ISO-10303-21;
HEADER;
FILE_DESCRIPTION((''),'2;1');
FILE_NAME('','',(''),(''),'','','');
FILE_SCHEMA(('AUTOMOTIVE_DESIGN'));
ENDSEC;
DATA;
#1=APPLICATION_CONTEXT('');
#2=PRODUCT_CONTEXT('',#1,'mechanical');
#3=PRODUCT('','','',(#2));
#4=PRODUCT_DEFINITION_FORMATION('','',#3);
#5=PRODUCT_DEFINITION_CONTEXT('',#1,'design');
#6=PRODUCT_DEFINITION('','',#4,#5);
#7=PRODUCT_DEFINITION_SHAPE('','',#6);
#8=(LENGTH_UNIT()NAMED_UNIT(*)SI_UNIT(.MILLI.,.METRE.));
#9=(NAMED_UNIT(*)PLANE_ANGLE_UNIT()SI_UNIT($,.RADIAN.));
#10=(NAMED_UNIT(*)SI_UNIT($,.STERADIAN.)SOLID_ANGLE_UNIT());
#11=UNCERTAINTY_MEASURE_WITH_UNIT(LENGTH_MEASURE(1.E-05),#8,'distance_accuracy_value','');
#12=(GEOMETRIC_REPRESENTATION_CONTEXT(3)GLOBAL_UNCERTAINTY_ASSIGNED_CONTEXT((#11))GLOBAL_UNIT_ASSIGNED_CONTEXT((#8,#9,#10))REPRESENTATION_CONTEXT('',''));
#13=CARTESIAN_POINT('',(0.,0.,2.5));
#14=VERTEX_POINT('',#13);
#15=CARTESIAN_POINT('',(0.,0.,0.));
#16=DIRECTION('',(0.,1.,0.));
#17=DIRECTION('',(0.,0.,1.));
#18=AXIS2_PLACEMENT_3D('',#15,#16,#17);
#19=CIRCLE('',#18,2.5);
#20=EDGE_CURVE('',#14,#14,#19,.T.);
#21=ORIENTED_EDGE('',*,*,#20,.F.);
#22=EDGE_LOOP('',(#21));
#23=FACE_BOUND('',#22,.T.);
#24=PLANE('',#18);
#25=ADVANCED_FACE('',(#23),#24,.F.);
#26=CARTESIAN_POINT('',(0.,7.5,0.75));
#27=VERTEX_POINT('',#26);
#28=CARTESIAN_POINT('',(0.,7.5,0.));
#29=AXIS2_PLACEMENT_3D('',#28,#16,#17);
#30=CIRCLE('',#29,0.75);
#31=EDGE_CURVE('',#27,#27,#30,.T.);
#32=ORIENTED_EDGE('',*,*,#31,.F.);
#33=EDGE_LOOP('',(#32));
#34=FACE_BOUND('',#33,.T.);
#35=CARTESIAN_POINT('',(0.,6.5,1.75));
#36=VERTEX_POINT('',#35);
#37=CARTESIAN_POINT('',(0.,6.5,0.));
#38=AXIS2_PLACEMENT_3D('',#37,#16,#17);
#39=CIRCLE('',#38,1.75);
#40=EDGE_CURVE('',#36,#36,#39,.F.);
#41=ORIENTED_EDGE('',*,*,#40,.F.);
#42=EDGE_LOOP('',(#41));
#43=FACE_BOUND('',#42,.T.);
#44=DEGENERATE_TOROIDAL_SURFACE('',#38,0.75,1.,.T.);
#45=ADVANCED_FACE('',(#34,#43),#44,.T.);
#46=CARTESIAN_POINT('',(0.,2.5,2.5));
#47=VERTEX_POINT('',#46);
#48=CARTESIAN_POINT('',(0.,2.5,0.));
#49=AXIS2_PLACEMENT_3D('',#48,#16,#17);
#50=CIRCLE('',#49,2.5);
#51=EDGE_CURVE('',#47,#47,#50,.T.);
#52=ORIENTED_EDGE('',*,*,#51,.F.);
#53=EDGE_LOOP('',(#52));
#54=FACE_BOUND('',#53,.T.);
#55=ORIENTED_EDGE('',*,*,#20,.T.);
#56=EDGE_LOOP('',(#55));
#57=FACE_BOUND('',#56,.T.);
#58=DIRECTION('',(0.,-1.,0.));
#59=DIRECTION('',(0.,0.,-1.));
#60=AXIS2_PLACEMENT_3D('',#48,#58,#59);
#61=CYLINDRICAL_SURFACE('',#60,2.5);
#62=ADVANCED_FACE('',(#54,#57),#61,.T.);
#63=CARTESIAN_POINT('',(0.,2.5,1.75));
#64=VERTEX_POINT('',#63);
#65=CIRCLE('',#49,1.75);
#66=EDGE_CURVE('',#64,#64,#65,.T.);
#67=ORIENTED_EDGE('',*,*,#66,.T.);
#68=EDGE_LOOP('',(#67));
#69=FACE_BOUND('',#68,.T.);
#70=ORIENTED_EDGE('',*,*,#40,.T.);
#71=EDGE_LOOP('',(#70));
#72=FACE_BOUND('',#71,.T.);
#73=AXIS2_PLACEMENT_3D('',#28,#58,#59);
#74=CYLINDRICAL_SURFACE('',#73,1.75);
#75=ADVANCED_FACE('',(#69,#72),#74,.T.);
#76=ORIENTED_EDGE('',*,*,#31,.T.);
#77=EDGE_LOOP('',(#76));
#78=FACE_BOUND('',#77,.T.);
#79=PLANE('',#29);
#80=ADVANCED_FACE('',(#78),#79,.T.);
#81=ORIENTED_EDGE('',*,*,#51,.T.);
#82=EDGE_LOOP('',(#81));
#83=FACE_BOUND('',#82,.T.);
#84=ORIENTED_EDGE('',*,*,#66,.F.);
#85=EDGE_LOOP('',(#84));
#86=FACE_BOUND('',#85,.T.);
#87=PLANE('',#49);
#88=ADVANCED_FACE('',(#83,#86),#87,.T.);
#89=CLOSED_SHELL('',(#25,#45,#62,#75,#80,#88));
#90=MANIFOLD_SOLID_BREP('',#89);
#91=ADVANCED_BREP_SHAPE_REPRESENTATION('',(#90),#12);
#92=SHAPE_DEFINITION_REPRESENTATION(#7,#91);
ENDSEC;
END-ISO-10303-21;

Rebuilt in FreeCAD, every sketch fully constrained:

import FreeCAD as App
import Part
import Sketcher
from FreeCAD import Vector
Q = App.Units.Quantity


def edges_at(feature, points):
    """Names of the edges that pass closest to the given points."""
    edges = feature.Shape.Edges
    near = lambda p: min(range(len(edges)), key=lambda i: edges[i].distToShape(Part.Vertex(*p))[0])
    return sorted({f"Edge{near(p) + 1}" for p in points})

doc = App.newDocument("Part")
params = doc.addObject("Spreadsheet::Sheet", "Params")
for row, (alias, value) in enumerate([
    ("sketch1_diameter", "5 mm"),
    ("pad1_length", "2.5 mm"),
    ("sketch2_diameter", "3.5 mm"),
    ("pad2_length", "5 mm"),
    ("fillet_radius", "1 mm"),
], start=1):
    params.set(f"A{row}", alias)
    params.set(f"B{row}", "=" + value)
    params.setAlias(f"B{row}", alias)

body = doc.addObject("PartDesign::Body", "Body")

# Sketch on XZ plane
sketch1 = body.newObject("Sketcher::SketchObject", "Sketch")
sketch1.AttachmentSupport = (doc.getObject("XZ_Plane"), [""])
sketch1.MapMode = "FlatFace"
sketch1.addGeometry(Part.Circle(Vector(0, 0, 0), Vector(0, 0, 1), 2.5), False)
sketch1.addConstraint([
    Sketcher.Constraint("Coincident", 0, 3, -1, 1),
    Sketcher.Constraint("Diameter", 0, Q("5 mm")),
])
sketch1.setExpression("Constraints[1]", "Params.sketch1_diameter")
pad1 = body.newObject("PartDesign::Pad", "Pad")
pad1.Profile = sketch1
pad1.setExpression("Length", "Params.pad1_length")
pad1.Reversed = True

# Sketch on XZ plane
sketch2 = body.newObject("Sketcher::SketchObject", "Sketch001")
sketch2.AttachmentSupport = (doc.getObject("XZ_Plane"), [""])
sketch2.MapMode = "FlatFace"
sketch2.AttachmentOffset = App.Placement(Vector(0, 0, -2.5), App.Rotation())
sketch2.addGeometry(Part.Circle(Vector(0, 0, 0), Vector(0, 0, 1), 1.8), False)
sketch2.addConstraint([
    Sketcher.Constraint("Coincident", 0, 3, -1, 1),
    Sketcher.Constraint("Diameter", 0, Q("3.5 mm")),
])
sketch2.setExpression("Constraints[1]", "Params.sketch2_diameter")
pad2 = body.newObject("PartDesign::Pad", "Pad001")
pad2.Profile = sketch2
pad2.setExpression("Length", "Params.pad2_length")
pad2.Reversed = True
doc.recompute()

fillet = body.newObject("PartDesign::Fillet", "Fillet")
fillet.Base = (pad2, edges_at(pad2, [(-1.75, 7.5, 0)]))
fillet.setExpression("Radius", "Params.fillet_radius")

doc.recompute()
